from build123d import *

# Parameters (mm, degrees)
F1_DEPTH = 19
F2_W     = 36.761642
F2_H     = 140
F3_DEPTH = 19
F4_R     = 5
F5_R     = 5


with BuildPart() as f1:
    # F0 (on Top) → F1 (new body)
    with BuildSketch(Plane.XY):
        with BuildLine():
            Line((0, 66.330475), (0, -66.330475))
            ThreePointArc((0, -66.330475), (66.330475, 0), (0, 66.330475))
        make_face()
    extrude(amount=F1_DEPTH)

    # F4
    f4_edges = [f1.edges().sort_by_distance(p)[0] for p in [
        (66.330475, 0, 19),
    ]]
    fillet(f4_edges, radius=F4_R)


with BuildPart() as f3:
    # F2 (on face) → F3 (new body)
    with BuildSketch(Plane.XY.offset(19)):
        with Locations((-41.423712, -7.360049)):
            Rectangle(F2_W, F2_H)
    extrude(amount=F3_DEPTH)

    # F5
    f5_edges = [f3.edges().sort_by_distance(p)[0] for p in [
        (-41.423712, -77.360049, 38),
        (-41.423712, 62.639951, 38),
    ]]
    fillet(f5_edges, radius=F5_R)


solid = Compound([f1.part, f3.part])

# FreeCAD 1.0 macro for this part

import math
import FreeCAD as App
import Part
import Sketcher


def edges_at(feature, points):
    """Names of the edges that pass closest to the given points."""
    edges = feature.Shape.Edges
    near = lambda p: min(range(len(edges)), key=lambda i: edges[i].distToShape(Part.Vertex(*p))[0])
    return sorted({f"Edge{near(p) + 1}" for p in points})

doc = App.newDocument("Part")
body = doc.addObject("PartDesign::Body", "Body")

# Sketch on XY plane
sketch1 = doc.addObject("Sketcher::SketchObject", "Sketch")
body.addObject(sketch1)
sketch1.AttachmentSupport = (doc.XY_Plane, [""])
sketch1.MapMode = "FlatFace"
sketch1.addGeometry([
    Part.LineSegment(App.Vector(0, 66, 0), App.Vector(0, -66, 0)),
    Part.ArcOfCircle(Part.Circle(App.Vector(0, 0, 0), App.Vector(0, 0, 1), 66), math.radians(-90), math.radians(90)),
], False)
sketch1.addConstraint([
    Sketcher.Constraint("Coincident", 0, 1, 1, 2),
    Sketcher.Constraint("Coincident", 1, 1, 0, 2),
    Sketcher.Constraint("Vertical", 0),
    Sketcher.Constraint("Coincident", 1, 3, -1, 1),
    Sketcher.Constraint("PointOnObject", 0, 1, -2),
    Sketcher.Constraint("Radius", 1, 66.330475),
])
pad1 = doc.addObject("PartDesign::Pad", "Pad")
body.addObject(pad1)
pad1.Profile = sketch1
pad1.Length = 19
doc.recompute()

fillet = doc.addObject("PartDesign::Fillet", "Fillet")
body.addObject(fillet)
fillet.Base = (pad1, edges_at(pad1, [(66.33, 0, 19)]))
fillet.Radius = 5
body2 = doc.addObject("PartDesign::Body", "Body001")

# Sketch on XY plane
sketch2 = doc.addObject("Sketcher::SketchObject", "Sketch001")
body2.addObject(sketch2)
sketch2.AttachmentSupport = (doc.getObject("XY_Plane001"), [""])
sketch2.MapMode = "FlatFace"
sketch2.AttachmentOffset = App.Placement(App.Vector(0, 0, 19), App.Rotation())
sketch2.addGeometry([
    Part.LineSegment(App.Vector(-60, 63, 0), App.Vector(-60, -77, 0)),
    Part.LineSegment(App.Vector(-60, -77, 0), App.Vector(-23, -77, 0)),
    Part.LineSegment(App.Vector(-23, -77, 0), App.Vector(-23, 63, 0)),
    Part.LineSegment(App.Vector(-23, 63, 0), App.Vector(-60, 63, 0)),
], False)
sketch2.addConstraint([
    Sketcher.Constraint("Coincident", 0, 2, 1, 1),
    Sketcher.Constraint("Coincident", 1, 2, 2, 1),
    Sketcher.Constraint("Coincident", 2, 2, 3, 1),
    Sketcher.Constraint("Coincident", 3, 2, 0, 1),
    Sketcher.Constraint("Vertical", 0),
    Sketcher.Constraint("Horizontal", 1),
    Sketcher.Constraint("Vertical", 2),
    Sketcher.Constraint("Horizontal", 3),
    Sketcher.Constraint("DistanceY", 0, 2, 0, 1, 140.0),
    Sketcher.Constraint("DistanceX", 1, 1, 1, 2, 36.761642),
    Sketcher.Constraint("DistanceY", 0, 2, -1, 1, 77.360049),
    Sketcher.Constraint("DistanceX", 1, 2, -1, 1, 23.042891),
])
pad2 = doc.addObject("PartDesign::Pad", "Pad001")
body2.addObject(pad2)
pad2.Profile = sketch2
pad2.Length = 19
doc.recompute()

fillet2 = doc.addObject("PartDesign::Fillet", "Fillet001")
body2.addObject(fillet2)
fillet2.Base = (pad2, edges_at(pad2, [(-41.424, -77.36, 38), (-41.424, 62.64, 38)]))
fillet2.Radius = 5

doc.recompute()
